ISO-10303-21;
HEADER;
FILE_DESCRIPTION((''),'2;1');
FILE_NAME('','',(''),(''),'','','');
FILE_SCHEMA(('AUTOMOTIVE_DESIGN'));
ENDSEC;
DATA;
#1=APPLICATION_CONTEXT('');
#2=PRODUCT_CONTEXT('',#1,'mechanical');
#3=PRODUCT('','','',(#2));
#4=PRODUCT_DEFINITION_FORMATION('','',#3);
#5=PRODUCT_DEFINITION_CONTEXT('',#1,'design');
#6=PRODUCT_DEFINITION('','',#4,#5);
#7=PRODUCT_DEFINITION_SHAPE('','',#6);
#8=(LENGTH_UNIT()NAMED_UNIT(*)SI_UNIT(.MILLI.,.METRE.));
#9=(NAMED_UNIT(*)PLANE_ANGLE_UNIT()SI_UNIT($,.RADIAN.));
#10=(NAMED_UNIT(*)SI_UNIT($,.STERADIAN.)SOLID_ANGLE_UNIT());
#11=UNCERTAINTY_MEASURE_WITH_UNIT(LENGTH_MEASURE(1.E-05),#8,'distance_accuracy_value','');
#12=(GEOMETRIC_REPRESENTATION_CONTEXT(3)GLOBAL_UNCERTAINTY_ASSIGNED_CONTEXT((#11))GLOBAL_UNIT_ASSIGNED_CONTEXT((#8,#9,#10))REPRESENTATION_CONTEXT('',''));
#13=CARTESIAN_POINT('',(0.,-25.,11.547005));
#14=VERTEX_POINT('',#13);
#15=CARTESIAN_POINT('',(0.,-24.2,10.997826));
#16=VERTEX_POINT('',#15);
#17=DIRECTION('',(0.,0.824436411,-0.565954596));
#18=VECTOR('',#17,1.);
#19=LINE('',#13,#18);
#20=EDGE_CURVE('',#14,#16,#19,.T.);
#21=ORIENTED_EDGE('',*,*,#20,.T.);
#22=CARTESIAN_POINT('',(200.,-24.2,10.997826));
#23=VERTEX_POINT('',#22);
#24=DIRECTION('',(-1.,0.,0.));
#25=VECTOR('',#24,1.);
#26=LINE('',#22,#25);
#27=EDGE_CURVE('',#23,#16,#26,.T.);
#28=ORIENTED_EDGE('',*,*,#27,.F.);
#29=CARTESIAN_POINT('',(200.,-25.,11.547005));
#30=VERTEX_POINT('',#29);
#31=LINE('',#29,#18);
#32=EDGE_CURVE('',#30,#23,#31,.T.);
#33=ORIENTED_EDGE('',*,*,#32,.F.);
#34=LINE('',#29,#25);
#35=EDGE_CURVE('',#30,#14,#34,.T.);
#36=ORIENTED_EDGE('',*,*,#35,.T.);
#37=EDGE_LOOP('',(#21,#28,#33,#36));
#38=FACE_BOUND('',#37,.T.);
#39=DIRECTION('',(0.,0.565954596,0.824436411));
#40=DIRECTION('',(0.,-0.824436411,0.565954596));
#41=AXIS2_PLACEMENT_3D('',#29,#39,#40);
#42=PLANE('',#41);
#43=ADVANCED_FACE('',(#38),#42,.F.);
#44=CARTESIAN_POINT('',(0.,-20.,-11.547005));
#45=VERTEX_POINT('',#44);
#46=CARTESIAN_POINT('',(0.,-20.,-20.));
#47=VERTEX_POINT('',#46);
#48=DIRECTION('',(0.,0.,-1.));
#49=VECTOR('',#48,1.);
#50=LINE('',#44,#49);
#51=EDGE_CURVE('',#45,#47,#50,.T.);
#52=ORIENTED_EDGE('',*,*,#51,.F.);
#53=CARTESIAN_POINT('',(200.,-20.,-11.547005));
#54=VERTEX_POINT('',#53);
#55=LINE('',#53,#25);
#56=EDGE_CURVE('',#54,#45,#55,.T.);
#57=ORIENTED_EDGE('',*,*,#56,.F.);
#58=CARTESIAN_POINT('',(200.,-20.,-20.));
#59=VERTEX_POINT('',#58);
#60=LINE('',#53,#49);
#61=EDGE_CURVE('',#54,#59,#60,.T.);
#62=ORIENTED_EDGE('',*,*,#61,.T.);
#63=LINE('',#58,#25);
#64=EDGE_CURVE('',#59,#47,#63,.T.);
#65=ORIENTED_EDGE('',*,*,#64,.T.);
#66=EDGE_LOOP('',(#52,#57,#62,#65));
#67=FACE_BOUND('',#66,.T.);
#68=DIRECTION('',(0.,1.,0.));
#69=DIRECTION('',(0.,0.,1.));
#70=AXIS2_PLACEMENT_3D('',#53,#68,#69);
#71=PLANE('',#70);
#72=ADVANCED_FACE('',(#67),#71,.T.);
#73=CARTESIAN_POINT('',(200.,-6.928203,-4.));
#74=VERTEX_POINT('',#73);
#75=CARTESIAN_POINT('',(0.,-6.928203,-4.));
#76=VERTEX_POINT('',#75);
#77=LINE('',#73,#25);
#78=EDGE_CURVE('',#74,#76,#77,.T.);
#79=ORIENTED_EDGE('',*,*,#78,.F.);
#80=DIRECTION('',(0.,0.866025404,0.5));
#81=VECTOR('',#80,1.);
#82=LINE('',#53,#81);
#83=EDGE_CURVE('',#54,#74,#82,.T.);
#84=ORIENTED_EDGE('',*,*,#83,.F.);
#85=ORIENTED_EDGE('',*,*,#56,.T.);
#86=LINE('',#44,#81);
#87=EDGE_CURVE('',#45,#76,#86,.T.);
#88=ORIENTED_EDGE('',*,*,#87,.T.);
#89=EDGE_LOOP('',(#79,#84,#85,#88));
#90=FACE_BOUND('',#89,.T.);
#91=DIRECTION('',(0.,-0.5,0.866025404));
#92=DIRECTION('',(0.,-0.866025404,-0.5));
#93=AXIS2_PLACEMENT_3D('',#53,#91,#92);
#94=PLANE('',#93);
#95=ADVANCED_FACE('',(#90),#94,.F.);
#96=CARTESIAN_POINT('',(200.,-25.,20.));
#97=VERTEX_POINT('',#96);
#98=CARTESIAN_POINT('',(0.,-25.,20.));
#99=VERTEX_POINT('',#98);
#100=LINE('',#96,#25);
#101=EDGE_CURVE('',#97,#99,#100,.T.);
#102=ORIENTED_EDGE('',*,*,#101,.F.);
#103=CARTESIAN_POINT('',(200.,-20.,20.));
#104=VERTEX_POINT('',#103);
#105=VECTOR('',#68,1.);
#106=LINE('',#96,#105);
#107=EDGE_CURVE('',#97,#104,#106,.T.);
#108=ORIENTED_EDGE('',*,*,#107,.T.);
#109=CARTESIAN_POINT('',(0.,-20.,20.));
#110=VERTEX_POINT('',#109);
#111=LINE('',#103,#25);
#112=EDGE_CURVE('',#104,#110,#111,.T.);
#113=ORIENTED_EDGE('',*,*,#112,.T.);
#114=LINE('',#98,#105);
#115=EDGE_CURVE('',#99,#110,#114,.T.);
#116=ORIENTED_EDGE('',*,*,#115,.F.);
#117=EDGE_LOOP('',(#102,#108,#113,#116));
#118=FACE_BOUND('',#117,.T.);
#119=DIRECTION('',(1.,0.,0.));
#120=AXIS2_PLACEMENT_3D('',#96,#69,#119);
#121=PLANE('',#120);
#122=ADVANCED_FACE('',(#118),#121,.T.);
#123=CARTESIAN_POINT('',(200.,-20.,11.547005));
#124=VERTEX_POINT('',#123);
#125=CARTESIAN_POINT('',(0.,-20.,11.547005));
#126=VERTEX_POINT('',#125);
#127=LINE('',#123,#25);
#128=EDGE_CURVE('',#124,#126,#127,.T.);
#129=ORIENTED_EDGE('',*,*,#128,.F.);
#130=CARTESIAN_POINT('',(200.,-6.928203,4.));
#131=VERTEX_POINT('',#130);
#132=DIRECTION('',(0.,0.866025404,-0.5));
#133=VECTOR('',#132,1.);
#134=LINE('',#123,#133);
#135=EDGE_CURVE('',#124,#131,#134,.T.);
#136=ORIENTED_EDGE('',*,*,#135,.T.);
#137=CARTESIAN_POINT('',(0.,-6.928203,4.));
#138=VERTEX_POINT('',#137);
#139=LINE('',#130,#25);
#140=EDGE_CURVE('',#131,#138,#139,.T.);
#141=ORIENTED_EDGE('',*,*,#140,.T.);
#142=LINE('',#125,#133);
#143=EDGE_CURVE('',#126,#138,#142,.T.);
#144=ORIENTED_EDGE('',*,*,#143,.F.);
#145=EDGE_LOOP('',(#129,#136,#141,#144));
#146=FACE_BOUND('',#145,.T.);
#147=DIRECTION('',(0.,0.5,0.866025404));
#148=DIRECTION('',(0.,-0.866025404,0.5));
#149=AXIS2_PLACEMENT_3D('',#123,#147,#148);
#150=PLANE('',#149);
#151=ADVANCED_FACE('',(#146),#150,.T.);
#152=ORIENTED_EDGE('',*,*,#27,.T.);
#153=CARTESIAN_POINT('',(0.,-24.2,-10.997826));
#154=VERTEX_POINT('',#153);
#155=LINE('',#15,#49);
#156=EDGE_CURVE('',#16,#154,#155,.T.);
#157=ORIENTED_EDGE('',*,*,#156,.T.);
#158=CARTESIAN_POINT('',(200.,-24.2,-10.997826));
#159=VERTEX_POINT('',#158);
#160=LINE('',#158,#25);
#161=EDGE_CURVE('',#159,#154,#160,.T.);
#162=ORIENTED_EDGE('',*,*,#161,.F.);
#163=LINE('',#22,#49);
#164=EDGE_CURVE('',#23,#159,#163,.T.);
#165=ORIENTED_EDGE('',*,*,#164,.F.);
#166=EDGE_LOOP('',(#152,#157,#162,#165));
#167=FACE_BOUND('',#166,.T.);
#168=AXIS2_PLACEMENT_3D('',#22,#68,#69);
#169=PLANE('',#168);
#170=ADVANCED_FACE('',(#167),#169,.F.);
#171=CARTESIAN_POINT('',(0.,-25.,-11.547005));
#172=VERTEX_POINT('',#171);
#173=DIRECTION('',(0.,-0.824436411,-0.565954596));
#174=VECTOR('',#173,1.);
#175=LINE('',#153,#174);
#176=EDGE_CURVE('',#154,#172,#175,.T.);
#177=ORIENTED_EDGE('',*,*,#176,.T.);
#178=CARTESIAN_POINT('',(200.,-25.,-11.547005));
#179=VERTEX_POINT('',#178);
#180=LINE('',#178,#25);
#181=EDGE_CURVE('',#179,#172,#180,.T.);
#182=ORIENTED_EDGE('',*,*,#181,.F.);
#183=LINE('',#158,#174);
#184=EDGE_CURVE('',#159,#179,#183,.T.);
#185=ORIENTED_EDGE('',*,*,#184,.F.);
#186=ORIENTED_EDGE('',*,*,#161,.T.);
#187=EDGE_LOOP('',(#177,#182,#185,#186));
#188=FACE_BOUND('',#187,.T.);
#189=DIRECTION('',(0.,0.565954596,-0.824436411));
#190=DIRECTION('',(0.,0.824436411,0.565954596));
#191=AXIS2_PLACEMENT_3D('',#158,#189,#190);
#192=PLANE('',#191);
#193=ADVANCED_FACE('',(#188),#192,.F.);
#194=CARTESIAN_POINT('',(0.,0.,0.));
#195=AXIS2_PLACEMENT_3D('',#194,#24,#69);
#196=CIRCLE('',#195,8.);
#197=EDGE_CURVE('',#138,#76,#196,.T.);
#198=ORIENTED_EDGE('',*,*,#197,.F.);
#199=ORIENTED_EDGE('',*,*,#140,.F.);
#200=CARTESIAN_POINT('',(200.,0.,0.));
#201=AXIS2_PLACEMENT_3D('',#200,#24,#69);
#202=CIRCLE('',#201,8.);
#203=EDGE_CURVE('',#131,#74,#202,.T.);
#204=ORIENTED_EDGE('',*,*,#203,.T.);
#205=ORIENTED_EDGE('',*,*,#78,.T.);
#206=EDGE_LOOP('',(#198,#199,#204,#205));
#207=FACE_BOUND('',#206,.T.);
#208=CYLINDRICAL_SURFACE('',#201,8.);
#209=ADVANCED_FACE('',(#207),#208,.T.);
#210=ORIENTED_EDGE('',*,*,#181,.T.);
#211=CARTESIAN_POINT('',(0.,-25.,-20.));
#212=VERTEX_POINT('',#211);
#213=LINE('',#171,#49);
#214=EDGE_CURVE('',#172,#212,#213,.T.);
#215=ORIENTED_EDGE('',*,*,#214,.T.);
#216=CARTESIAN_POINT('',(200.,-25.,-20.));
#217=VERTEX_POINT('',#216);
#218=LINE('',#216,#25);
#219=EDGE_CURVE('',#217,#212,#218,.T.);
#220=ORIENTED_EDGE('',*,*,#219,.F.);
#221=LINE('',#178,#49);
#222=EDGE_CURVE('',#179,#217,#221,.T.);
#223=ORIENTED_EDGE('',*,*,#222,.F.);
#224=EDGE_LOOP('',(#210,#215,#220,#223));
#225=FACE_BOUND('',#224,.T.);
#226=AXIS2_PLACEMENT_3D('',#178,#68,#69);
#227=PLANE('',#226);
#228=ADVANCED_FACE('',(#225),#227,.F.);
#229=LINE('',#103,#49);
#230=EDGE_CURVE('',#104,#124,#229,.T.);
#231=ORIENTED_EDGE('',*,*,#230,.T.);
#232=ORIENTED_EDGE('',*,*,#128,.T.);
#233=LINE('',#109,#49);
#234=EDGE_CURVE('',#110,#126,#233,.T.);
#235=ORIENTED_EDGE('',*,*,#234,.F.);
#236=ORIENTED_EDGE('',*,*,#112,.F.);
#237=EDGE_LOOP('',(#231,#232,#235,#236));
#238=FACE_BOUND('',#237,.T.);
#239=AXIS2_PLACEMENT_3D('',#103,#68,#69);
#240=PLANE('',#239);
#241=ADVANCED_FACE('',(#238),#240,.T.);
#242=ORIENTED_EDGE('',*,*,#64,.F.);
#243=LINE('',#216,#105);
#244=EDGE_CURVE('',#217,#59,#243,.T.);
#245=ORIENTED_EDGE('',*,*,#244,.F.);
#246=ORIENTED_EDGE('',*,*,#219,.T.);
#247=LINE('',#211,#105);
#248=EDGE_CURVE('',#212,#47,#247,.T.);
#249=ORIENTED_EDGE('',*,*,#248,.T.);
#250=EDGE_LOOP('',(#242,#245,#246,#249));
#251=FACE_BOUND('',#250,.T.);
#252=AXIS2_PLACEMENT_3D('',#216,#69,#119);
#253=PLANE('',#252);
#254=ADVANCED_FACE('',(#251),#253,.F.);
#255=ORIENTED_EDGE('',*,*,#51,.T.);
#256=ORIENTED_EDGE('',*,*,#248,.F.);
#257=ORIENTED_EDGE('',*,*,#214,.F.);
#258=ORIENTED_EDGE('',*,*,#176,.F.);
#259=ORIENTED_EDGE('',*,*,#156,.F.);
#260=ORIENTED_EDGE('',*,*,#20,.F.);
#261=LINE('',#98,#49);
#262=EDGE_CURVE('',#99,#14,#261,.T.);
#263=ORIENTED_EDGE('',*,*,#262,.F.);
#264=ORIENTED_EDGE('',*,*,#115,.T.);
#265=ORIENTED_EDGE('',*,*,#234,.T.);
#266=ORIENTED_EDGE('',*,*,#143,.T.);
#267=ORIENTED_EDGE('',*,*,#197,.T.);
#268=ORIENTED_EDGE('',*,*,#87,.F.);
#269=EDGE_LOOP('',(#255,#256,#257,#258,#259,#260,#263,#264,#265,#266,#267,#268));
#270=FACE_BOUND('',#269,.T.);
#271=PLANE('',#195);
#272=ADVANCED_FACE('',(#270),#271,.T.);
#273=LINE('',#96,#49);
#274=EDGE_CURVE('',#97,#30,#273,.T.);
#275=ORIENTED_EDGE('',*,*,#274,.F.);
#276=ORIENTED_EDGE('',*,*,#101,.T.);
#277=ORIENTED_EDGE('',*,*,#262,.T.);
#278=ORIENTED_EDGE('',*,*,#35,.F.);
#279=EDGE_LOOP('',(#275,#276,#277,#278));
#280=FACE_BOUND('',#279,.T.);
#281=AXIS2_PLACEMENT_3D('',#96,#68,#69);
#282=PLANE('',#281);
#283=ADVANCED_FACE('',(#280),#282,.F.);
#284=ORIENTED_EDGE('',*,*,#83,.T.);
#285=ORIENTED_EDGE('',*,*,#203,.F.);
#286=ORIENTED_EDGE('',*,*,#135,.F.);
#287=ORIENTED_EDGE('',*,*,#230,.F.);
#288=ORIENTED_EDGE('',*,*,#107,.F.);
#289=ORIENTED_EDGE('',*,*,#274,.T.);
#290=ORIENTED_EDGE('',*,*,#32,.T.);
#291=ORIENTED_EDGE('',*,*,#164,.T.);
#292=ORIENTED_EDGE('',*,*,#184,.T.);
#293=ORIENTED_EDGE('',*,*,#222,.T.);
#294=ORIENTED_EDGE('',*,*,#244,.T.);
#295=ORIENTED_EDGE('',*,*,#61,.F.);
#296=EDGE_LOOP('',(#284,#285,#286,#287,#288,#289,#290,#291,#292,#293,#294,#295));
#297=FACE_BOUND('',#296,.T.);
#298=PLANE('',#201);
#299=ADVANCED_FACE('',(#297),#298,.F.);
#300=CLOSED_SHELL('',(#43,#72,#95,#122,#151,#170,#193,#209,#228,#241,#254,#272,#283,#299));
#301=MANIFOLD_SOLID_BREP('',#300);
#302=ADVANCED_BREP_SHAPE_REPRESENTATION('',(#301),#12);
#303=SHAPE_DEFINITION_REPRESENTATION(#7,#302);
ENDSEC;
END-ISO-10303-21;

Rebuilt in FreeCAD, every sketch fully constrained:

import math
import FreeCAD as App
import Part
import Sketcher

V = App.Vector
Q = App.Units.Quantity

doc = App.newDocument("Part")
body = doc.addObject("PartDesign::Body", "Body")

# Sketch on YZ plane
sketch1 = body.newObject("Sketcher::SketchObject", "Sketch")
sketch1.AttachmentSupport = (doc.getObject("YZ_Plane"), [""])
sketch1.MapMode = "FlatFace"
sketch1.addGeometry([
    Part.LineSegment(V(-20, 20, 0), V(-25, 20, 0)),  # 0
    Part.LineSegment(V(-25, 20, 0), V(-25, 11.5, 0)),  # 1
    Part.LineSegment(V(-25, 11.5, 0), V(-24.2, 11, 0)),  # 2
    Part.LineSegment(V(-24.2, 11, 0), V(-24.2, -11, 0)),  # 3
    Part.LineSegment(V(-24.2, -11, 0), V(-25, -11.5, 0)),  # 4
    Part.LineSegment(V(-25, -11.5, 0), V(-25, -20, 0)),  # 5
    Part.LineSegment(V(-25, -20, 0), V(-20, -20, 0)),  # 6
    Part.LineSegment(V(-20, -20, 0), V(-20, -11.5, 0)),  # 7
    Part.LineSegment(V(-20, -11.5, 0), V(-6.9, -4, 0)),  # 8
    Part.ArcOfCircle(Part.Circle(V(0, 0, 0), V(0, 0, 1), 8), math.radians(-150), math.radians(150)),  # 9
    Part.LineSegment(V(-6.9, 4, 0), V(-20, 11.5, 0)),  # 10
    Part.LineSegment(V(-20, 11.5, 0), V(-20, 20, 0)),  # 11
], False)
sketch1.addConstraint([
    Sketcher.Constraint("Coincident", 0, 2, 1, 1),
    Sketcher.Constraint("Coincident", 1, 2, 2, 1),
    Sketcher.Constraint("Coincident", 2, 2, 3, 1),
    Sketcher.Constraint("Coincident", 3, 2, 4, 1),
    Sketcher.Constraint("Coincident", 4, 2, 5, 1),
    Sketcher.Constraint("Coincident", 5, 2, 6, 1),
    Sketcher.Constraint("Coincident", 6, 2, 7, 1),
    Sketcher.Constraint("Coincident", 7, 2, 8, 1),
    Sketcher.Constraint("Coincident", 8, 2, 9, 1),
    Sketcher.Constraint("Coincident", 9, 2, 10, 1),
    Sketcher.Constraint("Coincident", 10, 2, 11, 1),
    Sketcher.Constraint("Coincident", 11, 2, 0, 1),
    Sketcher.Constraint("Horizontal", 0),
    Sketcher.Constraint("Vertical", 1),
    Sketcher.Constraint("Vertical", 3),
    Sketcher.Constraint("Vertical", 5),
    Sketcher.Constraint("Horizontal", 6),
    Sketcher.Constraint("Vertical", 7),
    Sketcher.Constraint("Vertical", 11),
    Sketcher.Constraint("Coincident", 9, 3, -1, 1),
    Sketcher.Constraint("Symmetric", 1, 2, 4, 2, -1),
    Sketcher.Constraint("Symmetric", 7, 2, 10, 2, -1),
    Sketcher.Constraint("Horizontal", 4, 2, 7, 2),
    Sketcher.Constraint("Vertical", 8, 2, 9, 2),
    Sketcher.Constraint("Equal", 1, 5),
    Sketcher.Constraint("Equal", 2, 4),
    Sketcher.Constraint("Radius", 9, Q("8 mm")),
    Sketcher.Constraint("DistanceX", 0, 2, 0, 1, Q("5 mm")),
    Sketcher.Constraint("Angle", 8, Q("30 deg")),
    Sketcher.Constraint("DistanceX", 0, 2, -1, 1, Q("25 mm")),
    Sketcher.Constraint("DistanceY", -1, 1, 0, 2, Q("20 mm")),
    Sketcher.Constraint("DistanceY", 8, 2, -1, 1, Q("4 mm")),
    Sketcher.Constraint("DistanceX", 2, 2, -1, 1, Q("24.2 mm")),
    Sketcher.Constraint("DistanceY", 3, 2, 3, 1, Q("21.995652 mm")),
])
pad1 = body.newObject("PartDesign::Pad", "Pad")
pad1.Profile = sketch1
pad1.Length = 200

doc.recompute()
